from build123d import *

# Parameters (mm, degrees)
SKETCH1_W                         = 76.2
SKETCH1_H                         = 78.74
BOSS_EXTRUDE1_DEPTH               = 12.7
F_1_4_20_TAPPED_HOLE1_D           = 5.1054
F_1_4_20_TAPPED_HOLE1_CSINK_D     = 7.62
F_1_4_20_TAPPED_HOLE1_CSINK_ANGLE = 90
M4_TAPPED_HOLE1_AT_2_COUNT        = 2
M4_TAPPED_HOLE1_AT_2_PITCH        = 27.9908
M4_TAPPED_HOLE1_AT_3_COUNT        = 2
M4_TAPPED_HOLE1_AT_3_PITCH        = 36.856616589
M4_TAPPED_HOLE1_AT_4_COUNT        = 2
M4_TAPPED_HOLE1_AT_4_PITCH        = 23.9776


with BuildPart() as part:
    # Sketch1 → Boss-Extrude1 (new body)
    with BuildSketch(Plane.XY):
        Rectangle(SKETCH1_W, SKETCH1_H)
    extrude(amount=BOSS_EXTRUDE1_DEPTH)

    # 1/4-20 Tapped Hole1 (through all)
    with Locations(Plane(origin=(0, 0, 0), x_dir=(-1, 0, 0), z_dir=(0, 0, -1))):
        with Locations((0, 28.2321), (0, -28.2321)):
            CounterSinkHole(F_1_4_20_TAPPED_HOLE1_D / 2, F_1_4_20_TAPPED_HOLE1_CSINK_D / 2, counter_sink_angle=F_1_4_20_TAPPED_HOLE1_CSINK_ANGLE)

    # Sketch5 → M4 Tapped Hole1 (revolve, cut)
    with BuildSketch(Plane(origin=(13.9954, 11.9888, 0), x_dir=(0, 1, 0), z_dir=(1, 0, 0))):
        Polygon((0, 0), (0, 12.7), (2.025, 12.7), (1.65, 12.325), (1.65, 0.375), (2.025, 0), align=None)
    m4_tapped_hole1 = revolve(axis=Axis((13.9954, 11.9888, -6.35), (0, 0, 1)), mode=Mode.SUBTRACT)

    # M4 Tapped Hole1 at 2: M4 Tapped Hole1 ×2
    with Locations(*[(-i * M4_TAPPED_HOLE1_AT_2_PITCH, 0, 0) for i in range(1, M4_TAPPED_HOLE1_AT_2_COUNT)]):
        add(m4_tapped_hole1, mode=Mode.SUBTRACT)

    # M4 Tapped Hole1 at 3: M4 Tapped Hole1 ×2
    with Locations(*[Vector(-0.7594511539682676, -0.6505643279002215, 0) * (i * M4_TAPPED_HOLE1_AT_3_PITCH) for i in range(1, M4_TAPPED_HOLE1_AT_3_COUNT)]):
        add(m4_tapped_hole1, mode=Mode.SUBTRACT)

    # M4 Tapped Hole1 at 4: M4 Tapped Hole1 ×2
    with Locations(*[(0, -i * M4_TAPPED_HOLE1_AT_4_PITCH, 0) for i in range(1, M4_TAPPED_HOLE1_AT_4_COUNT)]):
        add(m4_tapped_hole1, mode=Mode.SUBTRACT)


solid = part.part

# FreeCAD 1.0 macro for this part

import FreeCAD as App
import Part
import Sketcher

V = App.Vector
Q = App.Units.Quantity


def add_polygon(sketch, points):
    """Adds a closed chain of lines whose ends are joined by coincident constraints."""
    first, n = sketch.GeometryCount, len(points)
    for a, b in zip(points, points[1:] + points[:1]):
        sketch.addGeometry(Part.LineSegment(App.Vector(*a, 0), App.Vector(*b, 0)), False)
    for i in range(n):
        sketch.addConstraint(Sketcher.Constraint("Coincident", first + i, 2, first + (i + 1) % n, 1))

doc = App.newDocument("Part")
body = doc.addObject("PartDesign::Body", "Body")

sketch1 = body.newObject("Sketcher::SketchObject", "Sketch")
sketch1.AttachmentSupport = (doc.getObject("XY_Plane"), [""])
sketch1.MapMode = "FlatFace"
add_polygon(sketch1, [(-38, 39), (-38, -39), (38, -39), (38, 39)])
sketch1.addConstraint(Sketcher.Constraint("Vertical", 0))
sketch1.addConstraint(Sketcher.Constraint("Horizontal", 1))
sketch1.addConstraint(Sketcher.Constraint("Vertical", 2))
sketch1.addConstraint(Sketcher.Constraint("Horizontal", 3))
sketch1.addConstraint(Sketcher.Constraint("Symmetric", 0, 2, 2, 2, -1, 1))
sketch1.addConstraint(Sketcher.Constraint("DistanceX", 1, 1, 1, 2, Q("3 in")))
sketch1.addConstraint(Sketcher.Constraint("DistanceY", 0, 2, 0, 1, Q("3.1 in")))
pad1 = body.newObject("PartDesign::Pad", "Pad")
pad1.Profile = sketch1
pad1.Length = Q("0.5 in")

sketch2 = body.newObject("Sketcher::SketchObject", "Sketch001")
sketch2.AttachmentSupport = (doc.getObject("XY_Plane"), [""])
sketch2.MapMode = "FlatFace"
sketch2.addGeometry(Part.Circle(V(0, 28.2, 0), V(0, 0, 1), 2.6), False)
sketch2.addGeometry(Part.Circle(V(0, -28.2, 0), V(0, 0, 1), 2.6), False)
sketch2.addConstraint(Sketcher.Constraint("Equal", 0, 1))
sketch2.addConstraint(Sketcher.Constraint("Symmetric", 0, 3, 1, 3, -1, 1))
sketch2.addConstraint(Sketcher.Constraint("PointOnObject", 0, 3, -2))
sketch2.addConstraint(Sketcher.Constraint("Diameter", 0, Q("0.201 in")))
sketch2.addConstraint(Sketcher.Constraint("DistanceY", 1, 3, 0, 3, Q("2.223 in")))
doc.recompute()
hole = body.newObject("PartDesign::Hole", "Hole")
hole.Profile = sketch2
hole.ThreadType = "None"
hole.Diameter = Q("0.201 in")
hole.DepthType = "ThroughAll"
hole.HoleCutType = "Countersink"
hole.HoleCutDiameter = Q("0.3 in")
hole.HoleCutCountersinkAngle = 90
hole.Reversed = True

sketch3 = body.newObject("Sketcher::SketchObject", "Sketch002")
sketch3.AttachmentSupport = (doc.getObject("YZ_Plane"), [""])
sketch3.MapMode = "FlatFace"
sketch3.AttachmentOffset = App.Placement(V(0, 0, 0.551 * 25.4), App.Rotation())
add_polygon(sketch3, [(12, 12.7), (12, 0), (14, 0), (13.6, 0.4), (13.6, 12.3), (14, 12.7)])
sketch3.addGeometry(Part.LineSegment(V(12, 0, 0), V(12, 12.7, 0)), True)
sketch3.addConstraint(Sketcher.Constraint("Vertical", 0))
sketch3.addConstraint(Sketcher.Constraint("Horizontal", 1))
sketch3.addConstraint(Sketcher.Constraint("Vertical", 3))
sketch3.addConstraint(Sketcher.Constraint("Horizontal", 5))
sketch3.addConstraint(Sketcher.Constraint("Vertical", 6))
sketch3.addConstraint(Sketcher.Constraint("Coincident", 6, 1, 0, 2))
sketch3.addConstraint(Sketcher.Constraint("PointOnObject", 0, 2, -1))
sketch3.addConstraint(Sketcher.Constraint("Perpendicular", 2, 4))
sketch3.addConstraint(Sketcher.Constraint("Horizontal", 4, 2, 6, 2))
sketch3.addConstraint(Sketcher.Constraint("Vertical", 1, 2, 4, 2))
sketch3.addConstraint(Sketcher.Constraint("Equal", 2, 4))
sketch3.addConstraint(Sketcher.Constraint("DistanceY", 0, 2, 0, 1, Q("0.5 in")))
sketch3.addConstraint(Sketcher.Constraint("DistanceX", -1, 1, 0, 2, Q("0.472 in")))
sketch3.addConstraint(Sketcher.Constraint("DistanceX", 1, 1, 1, 2, Q("2.025 mm")))
sketch3.addConstraint(Sketcher.Constraint("DistanceY", 3, 1, 3, 2, Q("11.95 mm")))
groove = body.newObject("PartDesign::Groove", "Groove")
groove.Profile = sketch3
groove.ReferenceAxis = (sketch3, ["Axis0"])
groove.Angle = 360
doc.recompute()

linearpattern = body.newObject("PartDesign::LinearPattern", "LinearPattern")
linearpattern.Originals = [groove]
linearpattern.Direction = (doc.getObject("X_Axis"), [""])
linearpattern.Mode = "offset"
linearpattern.Offset = Q("1.102 in")
linearpattern.Occurrences = 2
linearpattern.Reversed = True
body.Tip = linearpattern
doc.recompute()

datumline = body.newObject("PartDesign::Line", "DatumLine")
datumline.Placement = App.Placement(V(0, 0, 0), App.Rotation(V(0, 0, 1), V(-0.759451154, -0.650564328, 0)))
linearpattern2 = body.newObject("PartDesign::LinearPattern", "LinearPattern001")
linearpattern2.Originals = [groove]
linearpattern2.Direction = (datumline, [""])
linearpattern2.Mode = "offset"
linearpattern2.Offset = 36.856617
linearpattern2.Occurrences = 2
body.Tip = linearpattern2
doc.recompute()

linearpattern3 = body.newObject("PartDesign::LinearPattern", "LinearPattern002")
linearpattern3.Originals = [groove]
linearpattern3.Direction = (doc.getObject("Y_Axis"), [""])
linearpattern3.Mode = "offset"
linearpattern3.Offset = Q("0.944 in")
linearpattern3.Occurrences = 2
linearpattern3.Reversed = True
body.Tip = linearpattern3

doc.recompute()
